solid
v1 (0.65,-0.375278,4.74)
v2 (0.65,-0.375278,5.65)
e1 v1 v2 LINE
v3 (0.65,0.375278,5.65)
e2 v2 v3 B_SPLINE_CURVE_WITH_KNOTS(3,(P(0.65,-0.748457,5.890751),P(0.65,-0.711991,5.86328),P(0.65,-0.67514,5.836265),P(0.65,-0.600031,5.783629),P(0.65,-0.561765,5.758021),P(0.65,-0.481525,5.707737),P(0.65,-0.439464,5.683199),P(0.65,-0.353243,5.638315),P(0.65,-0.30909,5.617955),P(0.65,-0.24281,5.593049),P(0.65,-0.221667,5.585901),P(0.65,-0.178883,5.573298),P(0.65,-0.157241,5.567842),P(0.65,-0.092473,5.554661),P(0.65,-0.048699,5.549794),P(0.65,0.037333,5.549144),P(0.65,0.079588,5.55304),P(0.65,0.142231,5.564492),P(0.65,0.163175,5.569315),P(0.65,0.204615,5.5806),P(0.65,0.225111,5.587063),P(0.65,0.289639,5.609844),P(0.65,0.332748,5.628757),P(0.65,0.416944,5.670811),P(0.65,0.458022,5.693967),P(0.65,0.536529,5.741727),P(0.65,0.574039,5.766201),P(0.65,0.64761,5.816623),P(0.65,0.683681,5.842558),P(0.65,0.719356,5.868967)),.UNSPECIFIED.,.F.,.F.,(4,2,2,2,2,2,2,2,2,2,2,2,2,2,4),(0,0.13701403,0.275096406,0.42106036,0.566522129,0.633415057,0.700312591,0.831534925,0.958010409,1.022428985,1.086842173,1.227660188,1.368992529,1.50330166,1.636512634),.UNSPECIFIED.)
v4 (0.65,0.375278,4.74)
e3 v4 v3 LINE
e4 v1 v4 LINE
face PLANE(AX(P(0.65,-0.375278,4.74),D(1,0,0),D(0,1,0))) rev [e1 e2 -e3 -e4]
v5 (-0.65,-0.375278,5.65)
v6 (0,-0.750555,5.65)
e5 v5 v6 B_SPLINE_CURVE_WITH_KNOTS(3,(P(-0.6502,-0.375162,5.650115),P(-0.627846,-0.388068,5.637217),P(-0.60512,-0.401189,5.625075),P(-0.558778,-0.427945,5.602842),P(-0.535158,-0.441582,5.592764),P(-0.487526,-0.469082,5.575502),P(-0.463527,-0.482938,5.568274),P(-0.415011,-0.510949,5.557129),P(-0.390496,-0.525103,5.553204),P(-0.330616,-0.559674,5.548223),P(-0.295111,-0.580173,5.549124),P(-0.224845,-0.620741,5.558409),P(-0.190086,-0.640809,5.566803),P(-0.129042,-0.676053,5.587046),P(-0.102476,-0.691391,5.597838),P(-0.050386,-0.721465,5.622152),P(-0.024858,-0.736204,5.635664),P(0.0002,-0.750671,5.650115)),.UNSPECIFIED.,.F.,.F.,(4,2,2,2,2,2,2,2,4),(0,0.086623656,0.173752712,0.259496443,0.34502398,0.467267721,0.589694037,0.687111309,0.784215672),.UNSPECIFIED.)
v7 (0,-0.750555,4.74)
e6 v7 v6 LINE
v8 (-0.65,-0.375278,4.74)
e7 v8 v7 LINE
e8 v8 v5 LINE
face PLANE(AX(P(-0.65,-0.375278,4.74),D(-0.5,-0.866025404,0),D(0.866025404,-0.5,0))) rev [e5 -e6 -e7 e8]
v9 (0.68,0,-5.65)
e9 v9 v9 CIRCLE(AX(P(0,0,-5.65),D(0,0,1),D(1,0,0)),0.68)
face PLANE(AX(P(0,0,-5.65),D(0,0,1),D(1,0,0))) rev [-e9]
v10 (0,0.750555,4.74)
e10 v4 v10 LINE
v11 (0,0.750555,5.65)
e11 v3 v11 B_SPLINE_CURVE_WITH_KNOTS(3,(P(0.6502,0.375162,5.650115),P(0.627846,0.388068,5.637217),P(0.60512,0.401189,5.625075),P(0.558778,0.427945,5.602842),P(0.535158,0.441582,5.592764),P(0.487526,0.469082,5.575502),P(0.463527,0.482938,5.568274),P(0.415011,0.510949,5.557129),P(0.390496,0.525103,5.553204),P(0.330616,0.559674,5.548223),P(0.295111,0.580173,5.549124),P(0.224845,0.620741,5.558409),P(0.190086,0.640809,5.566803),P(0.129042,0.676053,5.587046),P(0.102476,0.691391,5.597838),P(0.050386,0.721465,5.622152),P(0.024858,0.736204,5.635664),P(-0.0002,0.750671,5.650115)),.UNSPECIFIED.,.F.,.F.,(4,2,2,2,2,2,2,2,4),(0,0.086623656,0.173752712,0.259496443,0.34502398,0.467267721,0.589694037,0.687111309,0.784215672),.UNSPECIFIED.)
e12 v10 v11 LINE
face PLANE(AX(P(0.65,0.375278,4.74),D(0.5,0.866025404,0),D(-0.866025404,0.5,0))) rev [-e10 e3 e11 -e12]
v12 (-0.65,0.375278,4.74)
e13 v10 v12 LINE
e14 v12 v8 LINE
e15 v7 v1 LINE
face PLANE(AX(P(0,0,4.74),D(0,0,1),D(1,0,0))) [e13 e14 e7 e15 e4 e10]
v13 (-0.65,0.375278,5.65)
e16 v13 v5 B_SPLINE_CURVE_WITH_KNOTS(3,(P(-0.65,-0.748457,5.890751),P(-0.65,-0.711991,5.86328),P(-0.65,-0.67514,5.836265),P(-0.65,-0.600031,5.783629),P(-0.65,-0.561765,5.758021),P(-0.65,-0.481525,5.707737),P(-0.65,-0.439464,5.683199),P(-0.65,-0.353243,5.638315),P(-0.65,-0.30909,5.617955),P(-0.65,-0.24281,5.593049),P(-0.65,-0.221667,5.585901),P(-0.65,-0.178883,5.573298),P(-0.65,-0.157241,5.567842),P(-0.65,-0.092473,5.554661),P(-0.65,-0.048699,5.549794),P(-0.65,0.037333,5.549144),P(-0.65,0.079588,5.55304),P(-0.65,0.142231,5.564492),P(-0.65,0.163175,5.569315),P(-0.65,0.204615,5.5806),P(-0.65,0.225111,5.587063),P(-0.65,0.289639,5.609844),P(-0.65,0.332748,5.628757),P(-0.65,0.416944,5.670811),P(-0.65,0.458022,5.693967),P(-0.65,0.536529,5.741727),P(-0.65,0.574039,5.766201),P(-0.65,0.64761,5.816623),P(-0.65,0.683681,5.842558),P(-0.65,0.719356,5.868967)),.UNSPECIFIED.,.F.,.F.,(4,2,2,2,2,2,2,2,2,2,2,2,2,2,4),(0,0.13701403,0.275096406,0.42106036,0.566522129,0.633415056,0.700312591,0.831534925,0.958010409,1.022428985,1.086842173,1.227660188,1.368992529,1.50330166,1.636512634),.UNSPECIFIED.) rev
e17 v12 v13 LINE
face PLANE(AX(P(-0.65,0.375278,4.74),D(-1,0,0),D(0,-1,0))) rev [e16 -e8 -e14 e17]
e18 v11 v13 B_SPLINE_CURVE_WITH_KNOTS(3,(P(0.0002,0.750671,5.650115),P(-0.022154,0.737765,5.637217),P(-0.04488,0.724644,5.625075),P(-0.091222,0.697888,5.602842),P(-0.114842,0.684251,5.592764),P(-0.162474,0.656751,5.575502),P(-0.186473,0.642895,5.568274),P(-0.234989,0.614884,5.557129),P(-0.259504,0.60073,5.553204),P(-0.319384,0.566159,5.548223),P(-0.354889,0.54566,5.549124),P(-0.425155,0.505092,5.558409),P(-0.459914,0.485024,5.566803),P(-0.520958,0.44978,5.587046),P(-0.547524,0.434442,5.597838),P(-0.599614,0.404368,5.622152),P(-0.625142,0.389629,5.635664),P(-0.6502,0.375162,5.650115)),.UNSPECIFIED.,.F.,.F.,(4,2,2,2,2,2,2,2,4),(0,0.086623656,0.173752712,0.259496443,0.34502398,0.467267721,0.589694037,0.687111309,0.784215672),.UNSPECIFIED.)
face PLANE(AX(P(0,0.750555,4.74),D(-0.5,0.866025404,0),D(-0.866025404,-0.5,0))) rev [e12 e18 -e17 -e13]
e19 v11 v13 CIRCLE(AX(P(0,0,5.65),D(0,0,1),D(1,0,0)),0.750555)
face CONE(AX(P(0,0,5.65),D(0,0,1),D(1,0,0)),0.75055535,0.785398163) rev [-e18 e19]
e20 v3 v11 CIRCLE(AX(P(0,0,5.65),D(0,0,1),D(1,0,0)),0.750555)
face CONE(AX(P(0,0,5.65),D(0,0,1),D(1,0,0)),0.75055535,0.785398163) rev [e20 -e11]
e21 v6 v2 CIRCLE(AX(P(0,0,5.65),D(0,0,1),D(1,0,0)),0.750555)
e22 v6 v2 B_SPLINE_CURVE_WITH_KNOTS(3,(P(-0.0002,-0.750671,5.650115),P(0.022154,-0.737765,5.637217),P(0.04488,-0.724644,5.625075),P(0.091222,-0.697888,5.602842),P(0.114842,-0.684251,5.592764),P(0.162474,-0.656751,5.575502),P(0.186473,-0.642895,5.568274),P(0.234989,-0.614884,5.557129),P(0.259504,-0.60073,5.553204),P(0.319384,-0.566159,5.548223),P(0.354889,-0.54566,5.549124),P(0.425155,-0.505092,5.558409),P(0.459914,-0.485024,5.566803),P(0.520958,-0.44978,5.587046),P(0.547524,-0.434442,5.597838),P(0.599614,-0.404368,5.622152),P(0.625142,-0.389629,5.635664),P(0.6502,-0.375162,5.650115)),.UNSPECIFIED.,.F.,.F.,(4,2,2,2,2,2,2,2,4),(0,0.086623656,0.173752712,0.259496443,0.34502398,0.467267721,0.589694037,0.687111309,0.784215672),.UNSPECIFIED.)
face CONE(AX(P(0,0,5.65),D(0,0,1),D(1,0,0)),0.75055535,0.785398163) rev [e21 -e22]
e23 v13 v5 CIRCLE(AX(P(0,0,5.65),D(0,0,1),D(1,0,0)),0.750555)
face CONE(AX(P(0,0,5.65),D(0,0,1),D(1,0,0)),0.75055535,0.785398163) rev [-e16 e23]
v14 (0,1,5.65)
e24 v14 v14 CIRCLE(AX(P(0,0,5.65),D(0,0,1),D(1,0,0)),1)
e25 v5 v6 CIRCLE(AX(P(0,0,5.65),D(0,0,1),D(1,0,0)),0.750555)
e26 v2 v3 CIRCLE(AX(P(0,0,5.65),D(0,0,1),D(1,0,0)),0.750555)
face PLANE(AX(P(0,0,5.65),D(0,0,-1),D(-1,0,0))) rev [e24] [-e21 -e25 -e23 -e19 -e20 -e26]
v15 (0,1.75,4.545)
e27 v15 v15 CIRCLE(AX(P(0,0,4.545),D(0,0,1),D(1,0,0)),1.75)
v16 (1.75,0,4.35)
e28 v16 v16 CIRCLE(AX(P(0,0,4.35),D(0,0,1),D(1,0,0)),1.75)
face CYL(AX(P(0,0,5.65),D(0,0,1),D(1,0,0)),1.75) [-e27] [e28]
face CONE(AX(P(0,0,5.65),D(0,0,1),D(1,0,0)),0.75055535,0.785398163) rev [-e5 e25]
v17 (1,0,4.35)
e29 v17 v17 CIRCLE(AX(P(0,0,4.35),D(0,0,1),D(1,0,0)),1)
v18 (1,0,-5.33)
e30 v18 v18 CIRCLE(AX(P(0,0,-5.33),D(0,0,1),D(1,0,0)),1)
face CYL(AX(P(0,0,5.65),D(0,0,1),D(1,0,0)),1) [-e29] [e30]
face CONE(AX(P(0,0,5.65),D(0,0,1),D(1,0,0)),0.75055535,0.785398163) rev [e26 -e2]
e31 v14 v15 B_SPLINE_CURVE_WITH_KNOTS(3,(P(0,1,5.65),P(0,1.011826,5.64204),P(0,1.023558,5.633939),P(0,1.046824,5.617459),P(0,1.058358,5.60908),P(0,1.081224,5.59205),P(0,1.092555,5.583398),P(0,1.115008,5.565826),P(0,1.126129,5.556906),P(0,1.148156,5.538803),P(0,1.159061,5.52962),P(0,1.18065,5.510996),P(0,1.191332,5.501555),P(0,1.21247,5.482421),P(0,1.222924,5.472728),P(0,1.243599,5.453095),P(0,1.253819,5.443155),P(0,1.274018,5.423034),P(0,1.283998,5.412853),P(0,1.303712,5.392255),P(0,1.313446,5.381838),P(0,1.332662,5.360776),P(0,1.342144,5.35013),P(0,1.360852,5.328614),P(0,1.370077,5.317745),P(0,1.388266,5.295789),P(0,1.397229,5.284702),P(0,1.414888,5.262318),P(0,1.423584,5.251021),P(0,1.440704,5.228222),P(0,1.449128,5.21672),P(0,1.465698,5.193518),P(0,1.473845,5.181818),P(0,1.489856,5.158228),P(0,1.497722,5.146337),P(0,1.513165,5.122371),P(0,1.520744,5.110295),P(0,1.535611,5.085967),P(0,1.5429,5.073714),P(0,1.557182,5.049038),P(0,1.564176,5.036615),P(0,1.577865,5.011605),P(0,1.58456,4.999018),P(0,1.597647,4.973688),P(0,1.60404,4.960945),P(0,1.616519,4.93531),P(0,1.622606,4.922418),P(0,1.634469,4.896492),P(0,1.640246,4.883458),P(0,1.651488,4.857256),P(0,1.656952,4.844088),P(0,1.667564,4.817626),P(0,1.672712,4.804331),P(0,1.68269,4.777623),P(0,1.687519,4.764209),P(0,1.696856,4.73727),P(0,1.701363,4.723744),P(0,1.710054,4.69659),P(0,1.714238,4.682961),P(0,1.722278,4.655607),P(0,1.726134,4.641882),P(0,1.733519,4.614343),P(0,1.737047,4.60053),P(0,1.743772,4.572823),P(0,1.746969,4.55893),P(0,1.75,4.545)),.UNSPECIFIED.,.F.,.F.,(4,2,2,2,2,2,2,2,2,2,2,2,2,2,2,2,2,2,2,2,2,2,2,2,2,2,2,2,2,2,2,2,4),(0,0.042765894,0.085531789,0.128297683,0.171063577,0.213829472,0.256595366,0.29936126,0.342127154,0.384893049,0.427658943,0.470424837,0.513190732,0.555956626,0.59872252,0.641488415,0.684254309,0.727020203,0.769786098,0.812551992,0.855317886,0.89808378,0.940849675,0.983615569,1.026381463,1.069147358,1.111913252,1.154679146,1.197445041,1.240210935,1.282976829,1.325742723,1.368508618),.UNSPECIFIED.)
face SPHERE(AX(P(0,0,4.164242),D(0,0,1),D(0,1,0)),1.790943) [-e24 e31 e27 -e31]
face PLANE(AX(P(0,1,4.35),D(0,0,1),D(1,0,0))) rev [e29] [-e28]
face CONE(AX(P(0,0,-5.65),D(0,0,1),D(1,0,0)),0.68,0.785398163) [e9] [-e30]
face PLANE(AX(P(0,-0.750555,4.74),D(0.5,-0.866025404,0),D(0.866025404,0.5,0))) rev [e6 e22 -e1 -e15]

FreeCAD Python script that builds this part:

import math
import FreeCAD as App
import Part
import Sketcher
from FreeCAD import Vector
Q = App.Units.Quantity


def add_polygon(sketch, points):
    """Adds a closed chain of lines whose ends are joined by coincident constraints."""
    first, n = sketch.GeometryCount, len(points)
    for a, b in zip(points, points[1:] + points[:1]):
        sketch.addGeometry(Part.LineSegment(App.Vector(*a, 0), App.Vector(*b, 0)), False)
    for i in range(n):
        sketch.addConstraint(Sketcher.Constraint("Coincident", first + i, 2, first + (i + 1) % n, 1))

doc = App.newDocument("Part")
params = doc.addObject("Spreadsheet::Sheet", "Params")
for row, (alias, value) in enumerate([
    ("sketch1_width", "1 mm"),
    ("sketch1_height", "11.3 mm"),
    ("sketch1_width2", "0.68 mm"),
    ("sketch1_width3", "0.75 mm"),
    ("revolution_angle", "360 deg"),
    ("pocket1_length", "0.91 mm"),
    ("groove_angle", "360 deg"),
], start=1):
    params.set(f"A{row}", alias)
    params.set(f"B{row}", "=" + value)
    params.setAlias(f"B{row}", alias)

body = doc.addObject("PartDesign::Body", "Body")

# Sketch on YZ plane
sketch1 = body.newObject("Sketcher::SketchObject", "Sketch")
sketch1.AttachmentSupport = (doc.getObject("YZ_Plane"), [""])
sketch1.MapMode = "FlatFace"
sketch1.addGeometry(Part.LineSegment(Vector(0, 5.65, 0), Vector(0, -5.65, 0)), False)
sketch1.addGeometry(Part.LineSegment(Vector(0, -5.65, 0), Vector(0.68, -5.65, 0)), False)
sketch1.addGeometry(Part.LineSegment(Vector(0.68, -5.65, 0), Vector(1, -5.33, 0)), False)
sketch1.addGeometry(Part.LineSegment(Vector(1, -5.33, 0), Vector(1, 4.35, 0)), False)
sketch1.addGeometry(Part.LineSegment(Vector(1, 4.35, 0), Vector(1.75, 4.35, 0)), False)
sketch1.addGeometry(Part.LineSegment(Vector(1.75, 4.35, 0), Vector(1.75, 4.54, 0)), False)
sketch1.addGeometry(Part.ArcOfCircle(Part.Circle(Vector(0, 4.16, 0), Vector(0, 0, 1), 1.79), math.radians(12), math.radians(56)), False)
sketch1.addGeometry(Part.LineSegment(Vector(1, 5.65, 0), Vector(0, 5.65, 0)), False)
sketch1.addConstraint(Sketcher.Constraint("Coincident", 0, 2, 1, 1))
sketch1.addConstraint(Sketcher.Constraint("Coincident", 1, 2, 2, 1))
sketch1.addConstraint(Sketcher.Constraint("Coincident", 2, 2, 3, 1))
sketch1.addConstraint(Sketcher.Constraint("Coincident", 3, 2, 4, 1))
sketch1.addConstraint(Sketcher.Constraint("Coincident", 4, 2, 5, 1))
sketch1.addConstraint(Sketcher.Constraint("Coincident", 5, 2, 6, 1))
sketch1.addConstraint(Sketcher.Constraint("Coincident", 6, 2, 7, 1))
sketch1.addConstraint(Sketcher.Constraint("Coincident", 7, 2, 0, 1))
sketch1.addConstraint(Sketcher.Constraint("Vertical", 0))
sketch1.addConstraint(Sketcher.Constraint("Horizontal", 1))
sketch1.addConstraint(Sketcher.Constraint("Vertical", 3))
sketch1.addConstraint(Sketcher.Constraint("Horizontal", 4))
sketch1.addConstraint(Sketcher.Constraint("Vertical", 5))
sketch1.addConstraint(Sketcher.Constraint("Horizontal", 7))
sketch1.addConstraint(Sketcher.Constraint("Symmetric", 0, 2, 7, 2, -1, 1))
sketch1.addConstraint(Sketcher.Constraint("PointOnObject", 6, 3, -2))
sketch1.addConstraint(Sketcher.Constraint("Vertical", 3, 2, 6, 2))
sketch1.addConstraint(Sketcher.Constraint("DistanceX", 7, 2, 7, 1, 1.0))
sketch1.addConstraint(Sketcher.Constraint("Angle", 2, Q("45 deg")))
sketch1.addConstraint(Sketcher.Constraint("DistanceY", 0, 2, 0, 1, 11.3))
sketch1.addConstraint(Sketcher.Constraint("DistanceY", 1, 2, 3, 2, 10.0))
sketch1.addConstraint(Sketcher.Constraint("DistanceX", 1, 1, 1, 2, 0.68))
sketch1.addConstraint(Sketcher.Constraint("DistanceX", 4, 1, 4, 2, 0.75))
sketch1.addConstraint(Sketcher.Constraint("DistanceY", 5, 1, 5, 2, 0.195))
sketch1.setExpression("Constraints[17]", "Params.sketch1_width")
sketch1.setExpression("Constraints[19]", "Params.sketch1_height")
sketch1.setExpression("Constraints[21]", "Params.sketch1_width2")
sketch1.setExpression("Constraints[22]", "Params.sketch1_width3")
revolution = body.newObject("PartDesign::Revolution", "Revolution")
revolution.Profile = sketch1
revolution.ReferenceAxis = (sketch1, ["V_Axis"])
revolution.setExpression("Angle", "Params.revolution_angle")

# Sketch on XY plane
sketch2 = body.newObject("Sketcher::SketchObject", "Sketch001")
sketch2.AttachmentSupport = (doc.getObject("XY_Plane"), [""])
sketch2.MapMode = "FlatFace"
sketch2.AttachmentOffset = App.Placement(Vector(0, 0, 5.65), App.Rotation())
add_polygon(sketch2, [(0, 0.8), (-0.7, 0.4), (-0.7, -0.4), (0, -0.8), (0.7, -0.4), (0.7, 0.4)])  # lines 0-5
sketch2.addConstraint(Sketcher.Constraint("Vertical", 1))
sketch2.addConstraint(Sketcher.Constraint("Vertical", 4))
sketch2.addConstraint(Sketcher.Constraint("Symmetric", 0, 2, 3, 2, -1, 1))
sketch2.addConstraint(Sketcher.Constraint("Symmetric", 2, 2, 5, 2, -1, 1))
sketch2.addConstraint(Sketcher.Constraint("PointOnObject", 2, 2, -2))
sketch2.addConstraint(Sketcher.Constraint("Parallel", 2, 5))
sketch2.addConstraint(Sketcher.Constraint("Horizontal", 1, 2, 3, 2))
sketch2.addConstraint(Sketcher.Constraint("Angle", 0, Q("-150 deg")))
sketch2.addConstraint(Sketcher.Constraint("DistanceX", 1, 2, 3, 2, 1.3))
sketch2.addConstraint(Sketcher.Constraint("DistanceY", 1, 2, 1, 1, 0.750555))
pocket1 = body.newObject("PartDesign::Pocket", "Pocket")
pocket1.Profile = sketch2
pocket1.setExpression("Length", "Params.pocket1_length")

# Sketch on YZ plane
sketch3 = body.newObject("Sketcher::SketchObject", "Sketch002")
sketch3.AttachmentSupport = (doc.getObject("YZ_Plane"), [""])
sketch3.MapMode = "FlatFace"
add_polygon(sketch3, [(0, 5.7), (-0.8, 5.7), (0, 4.9)])  # lines 0-2
sketch3.addConstraint(Sketcher.Constraint("Horizontal", 0))
sketch3.addConstraint(Sketcher.Constraint("Vertical", 2))
sketch3.addConstraint(Sketcher.Constraint("PointOnObject", 1, 2, -2))
sketch3.addConstraint(Sketcher.Constraint("Equal", 0, 2))
sketch3.addConstraint(Sketcher.Constraint("DistanceY", -1, 1, 0, 2, 5.65))
sketch3.addConstraint(Sketcher.Constraint("DistanceX", 0, 2, 0, 1, 0.750555))
groove = body.newObject("PartDesign::Groove", "Groove")
groove.Profile = sketch3
groove.ReferenceAxis = (sketch3, ["V_Axis"])
groove.setExpression("Angle", "Params.groove_angle")

doc.recompute()
